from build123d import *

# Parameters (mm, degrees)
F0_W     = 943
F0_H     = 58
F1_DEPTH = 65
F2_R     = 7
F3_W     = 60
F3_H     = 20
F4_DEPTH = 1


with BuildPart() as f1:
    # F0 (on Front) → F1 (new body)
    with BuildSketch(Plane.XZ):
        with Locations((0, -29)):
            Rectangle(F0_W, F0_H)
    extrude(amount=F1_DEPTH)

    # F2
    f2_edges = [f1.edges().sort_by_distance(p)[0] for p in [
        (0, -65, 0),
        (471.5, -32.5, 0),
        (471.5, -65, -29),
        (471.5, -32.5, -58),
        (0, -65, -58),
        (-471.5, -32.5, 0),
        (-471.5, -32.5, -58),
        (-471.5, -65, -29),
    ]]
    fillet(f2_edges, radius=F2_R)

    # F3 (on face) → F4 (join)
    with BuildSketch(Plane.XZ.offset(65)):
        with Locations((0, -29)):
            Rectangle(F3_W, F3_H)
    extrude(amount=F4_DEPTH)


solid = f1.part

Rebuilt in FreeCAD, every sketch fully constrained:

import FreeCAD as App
import Part
import Sketcher
from FreeCAD import Vector


def edges_at(feature, points):
    """Names of the edges that pass closest to the given points."""
    edges = feature.Shape.Edges
    near = lambda p: min(range(len(edges)), key=lambda i: edges[i].distToShape(Part.Vertex(*p))[0])
    return sorted({f"Edge{near(p) + 1}" for p in points})

doc = App.newDocument("Part")
params = doc.addObject("Spreadsheet::Sheet", "Params")
for row, (alias, value) in enumerate([
    ("sketch1_width", "943 mm"),
    ("sketch1_height", "58 mm"),
    ("pad1_length", "65 mm"),
    ("fillet_radius", "7 mm"),
    ("sketch2_width", "60 mm"),
    ("sketch2_height", "20 mm"),
    ("pad2_length", "1 mm"),
], start=1):
    params.set(f"A{row}", alias)
    params.set(f"B{row}", "=" + value)
    params.setAlias(f"B{row}", alias)

body = doc.addObject("PartDesign::Body", "Body")

# Sketch on XZ plane
sketch1 = body.newObject("Sketcher::SketchObject", "Sketch")
sketch1.AttachmentSupport = (doc.getObject("XZ_Plane"), [""])
sketch1.MapMode = "FlatFace"
sketch1.addGeometry([
    Part.LineSegment(Vector(-472, 0, 0), Vector(-472, -58, 0)),
    Part.LineSegment(Vector(-472, -58, 0), Vector(472, -58, 0)),
    Part.LineSegment(Vector(472, -58, 0), Vector(472, 0, 0)),
    Part.LineSegment(Vector(472, 0, 0), Vector(-472, 0, 0)),
], False)
sketch1.addConstraint([
    Sketcher.Constraint("Coincident", 0, 2, 1, 1),
    Sketcher.Constraint("Coincident", 1, 2, 2, 1),
    Sketcher.Constraint("Coincident", 2, 2, 3, 1),
    Sketcher.Constraint("Coincident", 3, 2, 0, 1),
    Sketcher.Constraint("Vertical", 0),
    Sketcher.Constraint("Horizontal", 1),
    Sketcher.Constraint("Vertical", 2),
    Sketcher.Constraint("Horizontal", 3),
    Sketcher.Constraint("Symmetric", 2, 2, 3, 2, -1, 1),
    Sketcher.Constraint("DistanceX", 1, 1, 1, 2, 943.0),
    Sketcher.Constraint("DistanceY", 0, 2, 0, 1, 58.0),
])
sketch1.setExpression("Constraints[9]", "Params.sketch1_width")
sketch1.setExpression("Constraints[10]", "Params.sketch1_height")
pad1 = body.newObject("PartDesign::Pad", "Pad")
pad1.Profile = sketch1
pad1.setExpression("Length", "Params.pad1_length")
doc.recompute()

fillet = body.newObject("PartDesign::Fillet", "Fillet")
fillet.Base = (pad1, edges_at(pad1, [
    (0, -65, 0),
    (471.5, -32.5, 0),
    (471.5, -65, -29),
    (471.5, -32.5, -58),
    (0, -65, -58),
    (-471.5, -32.5, 0),
    (-471.5, -32.5, -58),
    (-471.5, -65, -29),
]))
fillet.setExpression("Radius", "Params.fillet_radius")

# Sketch on XZ plane
sketch2 = body.newObject("Sketcher::SketchObject", "Sketch001")
sketch2.AttachmentSupport = (doc.getObject("XZ_Plane"), [""])
sketch2.MapMode = "FlatFace"
sketch2.AttachmentOffset = App.Placement(Vector(0, 0, 65), App.Rotation())
sketch2.addGeometry([
    Part.LineSegment(Vector(-30, -19, 0), Vector(-30, -39, 0)),
    Part.LineSegment(Vector(-30, -39, 0), Vector(30, -39, 0)),
    Part.LineSegment(Vector(30, -39, 0), Vector(30, -19, 0)),
    Part.LineSegment(Vector(30, -19, 0), Vector(-30, -19, 0)),
], False)
sketch2.addConstraint([
    Sketcher.Constraint("Coincident", 0, 2, 1, 1),
    Sketcher.Constraint("Coincident", 1, 2, 2, 1),
    Sketcher.Constraint("Coincident", 2, 2, 3, 1),
    Sketcher.Constraint("Coincident", 3, 2, 0, 1),
    Sketcher.Constraint("Vertical", 0),
    Sketcher.Constraint("Horizontal", 1),
    Sketcher.Constraint("Vertical", 2),
    Sketcher.Constraint("Horizontal", 3),
    Sketcher.Constraint("DistanceX", 1, 1, 1, 2, 60.0),
    Sketcher.Constraint("DistanceY", 0, 2, 0, 1, 20.0),
    Sketcher.Constraint("DistanceX", 0, 2, -1, 1, 30.0),
    Sketcher.Constraint("DistanceY", 0, 2, -1, 1, 39.0),
])
sketch2.setExpression("Constraints[8]", "Params.sketch2_width")
sketch2.setExpression("Constraints[9]", "Params.sketch2_height")
pad2 = body.newObject("PartDesign::Pad", "Pad001")
pad2.Profile = sketch2
pad2.setExpression("Length", "Params.pad2_length")

doc.recompute()
